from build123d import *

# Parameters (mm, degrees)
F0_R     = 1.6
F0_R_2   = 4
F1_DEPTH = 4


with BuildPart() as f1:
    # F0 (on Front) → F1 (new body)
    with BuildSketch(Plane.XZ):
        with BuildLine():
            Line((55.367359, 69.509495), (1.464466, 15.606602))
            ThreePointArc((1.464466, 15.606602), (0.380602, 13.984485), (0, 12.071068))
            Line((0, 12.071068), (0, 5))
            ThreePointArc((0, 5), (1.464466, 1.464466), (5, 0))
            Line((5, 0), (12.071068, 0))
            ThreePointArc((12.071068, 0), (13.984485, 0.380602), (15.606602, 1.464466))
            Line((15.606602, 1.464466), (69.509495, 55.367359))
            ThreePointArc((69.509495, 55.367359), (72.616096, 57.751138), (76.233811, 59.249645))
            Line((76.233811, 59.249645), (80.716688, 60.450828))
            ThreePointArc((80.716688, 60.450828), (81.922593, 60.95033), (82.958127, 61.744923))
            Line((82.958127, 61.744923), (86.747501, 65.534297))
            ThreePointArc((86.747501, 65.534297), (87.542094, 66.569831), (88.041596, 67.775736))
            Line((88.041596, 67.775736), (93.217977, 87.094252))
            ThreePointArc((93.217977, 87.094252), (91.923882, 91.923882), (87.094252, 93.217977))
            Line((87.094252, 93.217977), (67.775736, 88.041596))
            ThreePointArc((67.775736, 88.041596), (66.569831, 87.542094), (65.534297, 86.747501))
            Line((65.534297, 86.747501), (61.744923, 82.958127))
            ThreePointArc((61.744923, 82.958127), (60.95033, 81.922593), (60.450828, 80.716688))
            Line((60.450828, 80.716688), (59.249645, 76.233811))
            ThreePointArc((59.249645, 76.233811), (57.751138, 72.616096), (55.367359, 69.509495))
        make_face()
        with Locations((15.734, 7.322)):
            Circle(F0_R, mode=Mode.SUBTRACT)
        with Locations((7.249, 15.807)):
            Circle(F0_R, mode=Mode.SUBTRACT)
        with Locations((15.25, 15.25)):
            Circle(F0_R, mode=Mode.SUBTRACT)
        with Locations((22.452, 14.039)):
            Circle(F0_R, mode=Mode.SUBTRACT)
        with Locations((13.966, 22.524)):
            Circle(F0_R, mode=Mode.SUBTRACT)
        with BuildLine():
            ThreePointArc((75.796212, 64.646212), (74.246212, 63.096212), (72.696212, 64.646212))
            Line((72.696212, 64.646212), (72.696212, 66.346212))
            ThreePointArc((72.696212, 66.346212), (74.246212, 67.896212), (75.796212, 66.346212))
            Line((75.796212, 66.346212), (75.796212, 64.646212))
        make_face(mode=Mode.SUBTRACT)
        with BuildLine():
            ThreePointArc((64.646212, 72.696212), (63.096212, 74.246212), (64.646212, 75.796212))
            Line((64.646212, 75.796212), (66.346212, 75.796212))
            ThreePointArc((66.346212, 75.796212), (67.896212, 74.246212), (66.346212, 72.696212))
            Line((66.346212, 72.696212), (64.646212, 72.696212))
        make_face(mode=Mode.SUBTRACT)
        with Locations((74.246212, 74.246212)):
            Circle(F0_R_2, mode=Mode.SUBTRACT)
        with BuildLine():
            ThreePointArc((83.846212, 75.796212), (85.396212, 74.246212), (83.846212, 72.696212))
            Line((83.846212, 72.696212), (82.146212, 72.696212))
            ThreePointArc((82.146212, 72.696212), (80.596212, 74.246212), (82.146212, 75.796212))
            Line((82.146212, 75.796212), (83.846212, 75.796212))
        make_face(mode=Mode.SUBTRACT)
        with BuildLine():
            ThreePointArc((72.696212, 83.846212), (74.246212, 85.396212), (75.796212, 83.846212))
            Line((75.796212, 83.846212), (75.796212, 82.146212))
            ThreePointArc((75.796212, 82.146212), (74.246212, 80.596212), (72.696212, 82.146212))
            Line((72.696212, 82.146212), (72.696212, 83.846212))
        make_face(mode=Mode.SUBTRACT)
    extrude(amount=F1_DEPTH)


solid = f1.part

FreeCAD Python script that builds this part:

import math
import FreeCAD as App
import Part
import Sketcher
from FreeCAD import Vector
Q = App.Units.Quantity

doc = App.newDocument("Part")
body = doc.addObject("PartDesign::Body", "Body")

# Sketch on XZ plane
sketch1 = body.newObject("Sketcher::SketchObject", "Sketch")
sketch1.AttachmentSupport = (doc.getObject("XZ_Plane"), [""])
sketch1.MapMode = "FlatFace"
sketch1.addGeometry([
    Part.LineSegment(Vector(55.4, 69.5, 0), Vector(1.5, 15.6, 0)),  # 0
    Part.ArcOfCircle(Part.Circle(Vector(5, 12.1, 0), Vector(0, 0, 1), 5), math.radians(135), math.radians(180)),  # 1
    Part.LineSegment(Vector(0, 12.1, 0), Vector(0, 5, 0)),  # 2
    Part.ArcOfCircle(Part.Circle(Vector(5, 5, 0), Vector(0, 0, 1), 5), math.radians(180), math.radians(270)),  # 3
    Part.LineSegment(Vector(5, 0, 0), Vector(12.1, 0, 0)),  # 4
    Part.ArcOfCircle(Part.Circle(Vector(12.1, 5, 0), Vector(0, 0, 1), 5), math.radians(-90), math.radians(-45)),  # 5
    Part.LineSegment(Vector(15.6, 1.5, 0), Vector(69.5, 55.4, 0)),  # 6
    Part.ArcOfCircle(Part.Circle(Vector(80.1, 44.8, 0), Vector(0, 0, 1), 15), math.radians(105), math.radians(135)),  # 7
    Part.LineSegment(Vector(76.2, 59.2, 0), Vector(80.7, 60.5, 0)),  # 8
    Part.ArcOfCircle(Part.Circle(Vector(79.4, 65.3, 0), Vector(0, 0, 1), 5), math.radians(-75), math.radians(-45)),  # 9
    Part.LineSegment(Vector(83, 61.7, 0), Vector(86.7, 65.5, 0)),  # 10
    Part.ArcOfCircle(Part.Circle(Vector(83.2, 69.1, 0), Vector(0, 0, 1), 5), math.radians(-45), math.radians(-15)),  # 11
    Part.LineSegment(Vector(88, 67.8, 0), Vector(93.2, 87.1, 0)),  # 12
    Part.ArcOfCircle(Part.Circle(Vector(88.4, 88.4, 0), Vector(0, 0, 1), 5), math.radians(-15), math.radians(105)),  # 13
    Part.LineSegment(Vector(87.1, 93.2, 0), Vector(67.8, 88, 0)),  # 14
    Part.ArcOfCircle(Part.Circle(Vector(69.1, 83.2, 0), Vector(0, 0, 1), 5), math.radians(105), math.radians(135)),  # 15
    Part.LineSegment(Vector(65.5, 86.7, 0), Vector(61.7, 83, 0)),  # 16
    Part.ArcOfCircle(Part.Circle(Vector(65.3, 79.4, 0), Vector(0, 0, 1), 5), math.radians(135), math.radians(165)),  # 17
    Part.LineSegment(Vector(60.5, 80.7, 0), Vector(59.2, 76.2, 0)),  # 18
    Part.ArcOfCircle(Part.Circle(Vector(44.8, 80.1, 0), Vector(0, 0, 1), 15), math.radians(-45), math.radians(-15)),  # 19
    Part.Circle(Vector(15.2, 15.2, 0), Vector(0, 0, 1), 1.6),  # 20
    Part.Circle(Vector(15.7, 7.3, 0), Vector(0, 0, 1), 1.6),  # 21
    Part.Circle(Vector(22.5, 14, 0), Vector(0, 0, 1), 1.6),  # 22
    Part.Circle(Vector(7.2, 15.8, 0), Vector(0, 0, 1), 1.6),  # 23
    Part.Circle(Vector(14, 22.5, 0), Vector(0, 0, 1), 1.6),  # 24
    Part.LineSegment(Vector(75.8, 66.3, 0), Vector(75.8, 64.6, 0)),  # 25
    Part.ArcOfCircle(Part.Circle(Vector(74.2, 64.6, 0), Vector(0, 0, 1), 1.6), math.radians(180), math.radians(360)),  # 26
    Part.LineSegment(Vector(72.7, 64.6, 0), Vector(72.7, 66.3, 0)),  # 27
    Part.ArcOfCircle(Part.Circle(Vector(74.2, 66.3, 0), Vector(0, 0, 1), 1.6), math.radians(0), math.radians(180)),  # 28
    Part.LineSegment(Vector(66.3, 72.7, 0), Vector(64.6, 72.7, 0)),  # 29
    Part.ArcOfCircle(Part.Circle(Vector(64.6, 74.2, 0), Vector(0, 0, 1), 1.6), math.radians(90), math.radians(270)),  # 30
    Part.LineSegment(Vector(64.6, 75.8, 0), Vector(66.3, 75.8, 0)),  # 31
    Part.ArcOfCircle(Part.Circle(Vector(66.3, 74.2, 0), Vector(0, 0, 1), 1.6), math.radians(-90), math.radians(90)),  # 32
    Part.Circle(Vector(74.2, 74.2, 0), Vector(0, 0, 1), 4),  # 33
    Part.LineSegment(Vector(82.1, 75.8, 0), Vector(83.8, 75.8, 0)),  # 34
    Part.ArcOfCircle(Part.Circle(Vector(83.8, 74.2, 0), Vector(0, 0, 1), 1.6), math.radians(-90), math.radians(90)),  # 35
    Part.LineSegment(Vector(83.8, 72.7, 0), Vector(82.1, 72.7, 0)),  # 36
    Part.ArcOfCircle(Part.Circle(Vector(82.1, 74.2, 0), Vector(0, 0, 1), 1.6), math.radians(90), math.radians(270)),  # 37
    Part.LineSegment(Vector(72.7, 82.1, 0), Vector(72.7, 83.8, 0)),  # 38
    Part.ArcOfCircle(Part.Circle(Vector(74.2, 83.8, 0), Vector(0, 0, 1), 1.6), math.radians(0), math.radians(180)),  # 39
    Part.LineSegment(Vector(75.8, 83.8, 0), Vector(75.8, 82.1, 0)),  # 40
    Part.ArcOfCircle(Part.Circle(Vector(74.2, 82.1, 0), Vector(0, 0, 1), 1.6), math.radians(180), math.radians(360)),  # 41
], False)
sketch1.addConstraint([
    Sketcher.Constraint("Tangent", 0, 2, 1, 1),
    Sketcher.Constraint("Tangent", 1, 2, 2, 1),
    Sketcher.Constraint("Tangent", 2, 2, 3, 1),
    Sketcher.Constraint("Tangent", 3, 2, 4, 1),
    Sketcher.Constraint("Tangent", 4, 2, 5, 1),
    Sketcher.Constraint("Tangent", 5, 2, 6, 1),
    Sketcher.Constraint("Tangent", 6, 2, 7, 2),
    Sketcher.Constraint("Tangent", 7, 1, 8, 1),
    Sketcher.Constraint("Tangent", 8, 2, 9, 1),
    Sketcher.Constraint("Tangent", 9, 2, 10, 1),
    Sketcher.Constraint("Tangent", 10, 2, 11, 1),
    Sketcher.Constraint("Tangent", 11, 2, 12, 1),
    Sketcher.Constraint("Tangent", 12, 2, 13, 1),
    Sketcher.Constraint("Tangent", 13, 2, 14, 1),
    Sketcher.Constraint("Tangent", 14, 2, 15, 1),
    Sketcher.Constraint("Tangent", 15, 2, 16, 1),
    Sketcher.Constraint("Tangent", 16, 2, 17, 1),
    Sketcher.Constraint("Tangent", 17, 2, 18, 1),
    Sketcher.Constraint("Tangent", 18, 2, 19, 2),
    Sketcher.Constraint("Tangent", 19, 1, 0, 1),
    Sketcher.Constraint("Tangent", 25, 2, 26, 2),
    Sketcher.Constraint("Tangent", 26, 1, 27, 1),
    Sketcher.Constraint("Tangent", 27, 2, 28, 2),
    Sketcher.Constraint("Tangent", 28, 1, 25, 1),
    Sketcher.Constraint("Tangent", 29, 2, 30, 2),
    Sketcher.Constraint("Tangent", 30, 1, 31, 1),
    Sketcher.Constraint("Tangent", 31, 2, 32, 2),
    Sketcher.Constraint("Tangent", 32, 1, 29, 1),
    Sketcher.Constraint("Tangent", 34, 2, 35, 2),
    Sketcher.Constraint("Tangent", 35, 1, 36, 1),
    Sketcher.Constraint("Tangent", 36, 2, 37, 2),
    Sketcher.Constraint("Tangent", 37, 1, 34, 1),
    Sketcher.Constraint("Tangent", 38, 2, 39, 2),
    Sketcher.Constraint("Tangent", 39, 1, 40, 1),
    Sketcher.Constraint("Tangent", 40, 2, 41, 2),
    Sketcher.Constraint("Tangent", 41, 1, 38, 1),
    Sketcher.Constraint("Vertical", 2),
    Sketcher.Constraint("Horizontal", 4),
    Sketcher.Constraint("Vertical", 25),
    Sketcher.Constraint("Vertical", 27),
    Sketcher.Constraint("Horizontal", 29),
    Sketcher.Constraint("Horizontal", 31),
    Sketcher.Constraint("Horizontal", 34),
    Sketcher.Constraint("Horizontal", 36),
    Sketcher.Constraint("Vertical", 38),
    Sketcher.Constraint("Vertical", 40),
    Sketcher.Constraint("Equal", 1, 3),
    Sketcher.Constraint("Equal", 3, 5),
    Sketcher.Constraint("Equal", 5, 9),
    Sketcher.Constraint("Equal", 9, 11),
    Sketcher.Constraint("Equal", 11, 13),
    Sketcher.Constraint("Equal", 13, 15),
    Sketcher.Constraint("Equal", 15, 17),
    Sketcher.Constraint("Equal", 7, 19),
    Sketcher.Constraint("Equal", 20, 21),
    Sketcher.Constraint("Equal", 21, 22),
    Sketcher.Constraint("Equal", 22, 23),
    Sketcher.Constraint("Equal", 23, 24),
    Sketcher.Constraint("Equal", 28, 30),
    Sketcher.Constraint("Equal", 32, 35),
    Sketcher.Constraint("Equal", 37, 39),
    Sketcher.Constraint("PointOnObject", 1, 2, -2),
    Sketcher.Constraint("PointOnObject", 3, 2, -1),
    Sketcher.Constraint("Parallel", 0, 6),
    Sketcher.Constraint("Parallel", 6, 10),
    Sketcher.Constraint("Parallel", 8, 14),
    Sketcher.Constraint("Parallel", 10, 16),
    Sketcher.Constraint("Parallel", 12, 18),
    Sketcher.Constraint("Horizontal", 32, 3, 33, 3),
    Sketcher.Constraint("Horizontal", 33, 3, 35, 3),
    Sketcher.Constraint("Vertical", 28, 3, 33, 3),
    Sketcher.Constraint("Vertical", 33, 3, 39, 3),
    Sketcher.Constraint("Equal", 31, 34),
    Sketcher.Constraint("Equal", 4, 2),
    Sketcher.Constraint("Equal", 36, 25),
    Sketcher.Constraint("Equal", 27, 38),
    Sketcher.Constraint("Equal", 0, 6),
    Sketcher.Constraint("Equal", 12, 14),
    Sketcher.Constraint("Equal", 10, 16),
    Sketcher.Constraint("Equal", 8, 18),
    Sketcher.Constraint("Diameter", 33, Q("8 mm")),
    Sketcher.Constraint("Radius", 3, Q("5 mm")),
    Sketcher.Constraint("Diameter", 20, Q("3.2 mm")),
    Sketcher.Constraint("Angle", 0, Q("-135 deg")),
    Sketcher.Constraint("Angle", 8, Q("14.999997 deg")),
    Sketcher.Constraint("Radius", 26, Q("1.55 mm")),
    Sketcher.Constraint("Distance", 12, Q("20 mm")),
    Sketcher.Constraint("DistanceX", 29, 2, 29, 1, Q("1.7 mm")),
    Sketcher.Constraint("DistanceX", 30, 3, 28, 3, Q("9.6 mm")),
    Sketcher.Constraint("DistanceY", 28, 3, 30, 3, Q("7.9 mm")),
    Sketcher.Constraint("DistanceX", 33, 3, 35, 3, Q("9.6 mm")),
    Sketcher.Constraint("DistanceY", 33, 3, 39, 3, Q("9.6 mm")),
    Sketcher.Constraint("DistanceX", -1, 1, 20, 3, Q("15.25 mm")),
    Sketcher.Constraint("DistanceY", -1, 1, 20, 3, Q("15.25 mm")),
    Sketcher.Constraint("DistanceX", -1, 1, 21, 3, Q("15.734 mm")),
    Sketcher.Constraint("DistanceY", -1, 1, 21, 3, Q("7.322 mm")),
    Sketcher.Constraint("DistanceX", -1, 1, 22, 3, Q("22.452 mm")),
    Sketcher.Constraint("DistanceY", -1, 1, 22, 3, Q("14.039 mm")),
    Sketcher.Constraint("DistanceX", -1, 1, 23, 3, Q("7.249 mm")),
    Sketcher.Constraint("DistanceY", -1, 1, 23, 3, Q("15.807 mm")),
    Sketcher.Constraint("DistanceX", -1, 1, 24, 3, Q("13.966 mm")),
    Sketcher.Constraint("DistanceY", -1, 1, 24, 3, Q("22.524 mm")),
    Sketcher.Constraint("Radius", 7, Q("15.000003 mm")),
    Sketcher.Constraint("DistanceX", 4, 1, 4, 2, Q("7.071068 mm")),
    Sketcher.Constraint("DistanceX", -1, 1, 7, 3, Q("80.116099 mm")),
    Sketcher.Constraint("DistanceX", -1, 1, 10, 2, Q("86.747501 mm")),
    Sketcher.Constraint("DistanceX", 26, 3, 7, 1, Q("1.987599 mm")),
    Sketcher.Constraint("DistanceY", 30, 3, 18, 2, Q("1.987599 mm")),
])
pad1 = body.newObject("PartDesign::Pad", "Pad")
pad1.Profile = sketch1
pad1.Length = 4

doc.recompute()
